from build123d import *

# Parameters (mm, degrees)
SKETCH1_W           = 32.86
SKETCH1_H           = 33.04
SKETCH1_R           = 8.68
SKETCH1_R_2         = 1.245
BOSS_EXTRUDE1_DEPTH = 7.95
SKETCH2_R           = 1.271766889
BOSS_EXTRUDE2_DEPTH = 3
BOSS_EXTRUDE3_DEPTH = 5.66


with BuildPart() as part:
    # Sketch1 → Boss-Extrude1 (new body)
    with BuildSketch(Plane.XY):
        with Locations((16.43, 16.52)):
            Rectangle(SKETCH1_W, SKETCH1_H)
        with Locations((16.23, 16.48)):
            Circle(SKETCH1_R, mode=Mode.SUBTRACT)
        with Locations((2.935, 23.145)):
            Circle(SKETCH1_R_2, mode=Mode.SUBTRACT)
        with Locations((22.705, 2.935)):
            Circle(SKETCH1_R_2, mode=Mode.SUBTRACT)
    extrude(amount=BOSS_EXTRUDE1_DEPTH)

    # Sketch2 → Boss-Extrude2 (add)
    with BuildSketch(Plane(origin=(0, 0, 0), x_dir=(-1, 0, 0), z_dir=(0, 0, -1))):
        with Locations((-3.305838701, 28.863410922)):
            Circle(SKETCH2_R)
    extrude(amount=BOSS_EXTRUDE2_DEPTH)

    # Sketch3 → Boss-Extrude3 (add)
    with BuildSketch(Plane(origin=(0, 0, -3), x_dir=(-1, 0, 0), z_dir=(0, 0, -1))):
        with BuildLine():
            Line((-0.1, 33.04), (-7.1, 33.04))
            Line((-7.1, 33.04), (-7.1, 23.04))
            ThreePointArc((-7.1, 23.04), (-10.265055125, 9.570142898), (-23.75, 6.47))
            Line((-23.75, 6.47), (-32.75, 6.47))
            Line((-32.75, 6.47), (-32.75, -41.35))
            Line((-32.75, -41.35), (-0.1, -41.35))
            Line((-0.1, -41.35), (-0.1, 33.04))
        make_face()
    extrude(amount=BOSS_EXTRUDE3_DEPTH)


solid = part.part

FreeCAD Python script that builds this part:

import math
import FreeCAD as App
import Part
import Sketcher

doc = App.newDocument("Part")
body = doc.addObject("PartDesign::Body", "Body")

sketch1 = body.newObject("Sketcher::SketchObject", "Sketch")
sketch1.AttachmentSupport = (doc.getObject("XY_Plane"), [""])
sketch1.MapMode = "FlatFace"
sketch1.addGeometry(Part.LineSegment(App.Vector(0, 33, 0), App.Vector(0, 0, 0)), False)
sketch1.addGeometry(Part.LineSegment(App.Vector(0, 0, 0), App.Vector(32.9, 0, 0)), False)
sketch1.addGeometry(Part.LineSegment(App.Vector(32.9, 0, 0), App.Vector(32.9, 33, 0)), False)
sketch1.addGeometry(Part.LineSegment(App.Vector(32.9, 33, 0), App.Vector(0, 33, 0)), False)
sketch1.addGeometry(Part.Circle(App.Vector(22.7, 2.9, 0), App.Vector(0, 0, 1), 1.2), False)
sketch1.addGeometry(Part.Circle(App.Vector(2.9, 23.1, 0), App.Vector(0, 0, 1), 1.2), False)
sketch1.addGeometry(Part.Circle(App.Vector(16.2, 16.5, 0), App.Vector(0, 0, 1), 8.7), False)
sketch1.addConstraint(Sketcher.Constraint("Coincident", 0, 2, 1, 1))
sketch1.addConstraint(Sketcher.Constraint("Coincident", 1, 2, 2, 1))
sketch1.addConstraint(Sketcher.Constraint("Coincident", 2, 2, 3, 1))
sketch1.addConstraint(Sketcher.Constraint("Coincident", 3, 2, 0, 1))
sketch1.addConstraint(Sketcher.Constraint("Vertical", 0))
sketch1.addConstraint(Sketcher.Constraint("Horizontal", 1))
sketch1.addConstraint(Sketcher.Constraint("Vertical", 2))
sketch1.addConstraint(Sketcher.Constraint("Horizontal", 3))
sketch1.addConstraint(Sketcher.Constraint("Coincident", 0, 2, -1, 1))
sketch1.addConstraint(Sketcher.Constraint("Equal", 4, 5))
sketch1.addConstraint(Sketcher.Constraint("Diameter", 4, 2.49))
sketch1.addConstraint(Sketcher.Constraint("Diameter", 6, 17.36))
sketch1.addConstraint(Sketcher.Constraint("DistanceX", 1, 1, 1, 2, 32.86))
sketch1.addConstraint(Sketcher.Constraint("DistanceY", 0, 2, 0, 1, 33.04))
sketch1.addConstraint(Sketcher.Constraint("DistanceX", -1, 1, 6, 3, 16.23))
sketch1.addConstraint(Sketcher.Constraint("DistanceY", -1, 1, 6, 3, 16.48))
sketch1.addConstraint(Sketcher.Constraint("DistanceX", 5, 3, 4, 3, 19.77))
sketch1.addConstraint(Sketcher.Constraint("DistanceY", 4, 3, 5, 3, 20.21))
sketch1.addConstraint(Sketcher.Constraint("DistanceX", -1, 1, 4, 3, 22.705))
sketch1.addConstraint(Sketcher.Constraint("DistanceY", -1, 1, 4, 3, 2.935))
pad1 = body.newObject("PartDesign::Pad", "Pad")
pad1.Profile = sketch1
pad1.Length = 7.95

sketch2 = body.newObject("Sketcher::SketchObject", "Sketch001")
sketch2.AttachmentSupport = (doc.getObject("XY_Plane"), [""])
sketch2.MapMode = "FlatFace"
sketch2.addGeometry(Part.Circle(App.Vector(3.3, 28.9, 0), App.Vector(0, 0, 1), 1.3), False)
sketch2.addConstraint(Sketcher.Constraint("Diameter", 0, 2.543534))
sketch2.addConstraint(Sketcher.Constraint("DistanceX", -1, 1, 0, 3, 3.305839))
sketch2.addConstraint(Sketcher.Constraint("DistanceY", -1, 1, 0, 3, 28.863411))
pad2 = body.newObject("PartDesign::Pad", "Pad001")
pad2.Profile = sketch2
pad2.Length = 3
pad2.Reversed = True

sketch3 = body.newObject("Sketcher::SketchObject", "Sketch002")
sketch3.AttachmentSupport = (doc.getObject("XY_Plane"), [""])
sketch3.MapMode = "FlatFace"
sketch3.AttachmentOffset = App.Placement(App.Vector(0, 0, -3), App.Rotation())
sketch3.addGeometry(Part.LineSegment(App.Vector(0, 33, 0), App.Vector(7, 33, 0)), False)
sketch3.addGeometry(Part.LineSegment(App.Vector(7, 33, 0), App.Vector(7, 23, 0)), False)
sketch3.addGeometry(Part.ArcOfCircle(Part.Circle(App.Vector(19, 19, 0), App.Vector(0, 0, 1), 13), math.radians(161), math.radians(289)), False)
sketch3.addGeometry(Part.LineSegment(App.Vector(24, 6, 0), App.Vector(33, 6, 0)), False)
sketch3.addGeometry(Part.LineSegment(App.Vector(33, 6, 0), App.Vector(33, -41, 0)), False)
sketch3.addGeometry(Part.LineSegment(App.Vector(33, -41, 0), App.Vector(0, -41, 0)), False)
sketch3.addGeometry(Part.LineSegment(App.Vector(0, -41, 0), App.Vector(0, 33, 0)), False)
sketch3.addConstraint(Sketcher.Constraint("Coincident", 0, 2, 1, 1))
sketch3.addConstraint(Sketcher.Constraint("Coincident", 1, 2, 2, 1))
sketch3.addConstraint(Sketcher.Constraint("Coincident", 2, 2, 3, 1))
sketch3.addConstraint(Sketcher.Constraint("Coincident", 3, 2, 4, 1))
sketch3.addConstraint(Sketcher.Constraint("Coincident", 4, 2, 5, 1))
sketch3.addConstraint(Sketcher.Constraint("Coincident", 5, 2, 6, 1))
sketch3.addConstraint(Sketcher.Constraint("Coincident", 6, 2, 0, 1))
sketch3.addConstraint(Sketcher.Constraint("Horizontal", 0))
sketch3.addConstraint(Sketcher.Constraint("Vertical", 1))
sketch3.addConstraint(Sketcher.Constraint("Horizontal", 3))
sketch3.addConstraint(Sketcher.Constraint("Vertical", 4))
sketch3.addConstraint(Sketcher.Constraint("Horizontal", 5))
sketch3.addConstraint(Sketcher.Constraint("Vertical", 6))
sketch3.addConstraint(Sketcher.Constraint("DistanceX", 0, 1, 0, 2, 7.0))
sketch3.addConstraint(Sketcher.Constraint("DistanceX", 3, 1, 3, 2, 9.0))
sketch3.addConstraint(Sketcher.Constraint("DistanceY", 1, 2, 1, 1, 10.0))
sketch3.addConstraint(Sketcher.Constraint("DistanceX", 5, 2, 5, 1, 32.65))
sketch3.addConstraint(Sketcher.Constraint("DistanceY", 4, 2, 4, 1, 47.82))
sketch3.addConstraint(Sketcher.Constraint("DistanceY", 6, 1, 6, 2, 74.39))
sketch3.addConstraint(Sketcher.Constraint("DistanceX", -1, 1, 0, 2, 7.1))
sketch3.addConstraint(Sketcher.Constraint("DistanceY", -1, 1, 0, 2, 33.04))
sketch3.addConstraint(Sketcher.Constraint("Radius", 2, 13.086618))
pad3 = body.newObject("PartDesign::Pad", "Pad002")
pad3.Profile = sketch3
pad3.Length = 5.66
pad3.Reversed = True

doc.recompute()
